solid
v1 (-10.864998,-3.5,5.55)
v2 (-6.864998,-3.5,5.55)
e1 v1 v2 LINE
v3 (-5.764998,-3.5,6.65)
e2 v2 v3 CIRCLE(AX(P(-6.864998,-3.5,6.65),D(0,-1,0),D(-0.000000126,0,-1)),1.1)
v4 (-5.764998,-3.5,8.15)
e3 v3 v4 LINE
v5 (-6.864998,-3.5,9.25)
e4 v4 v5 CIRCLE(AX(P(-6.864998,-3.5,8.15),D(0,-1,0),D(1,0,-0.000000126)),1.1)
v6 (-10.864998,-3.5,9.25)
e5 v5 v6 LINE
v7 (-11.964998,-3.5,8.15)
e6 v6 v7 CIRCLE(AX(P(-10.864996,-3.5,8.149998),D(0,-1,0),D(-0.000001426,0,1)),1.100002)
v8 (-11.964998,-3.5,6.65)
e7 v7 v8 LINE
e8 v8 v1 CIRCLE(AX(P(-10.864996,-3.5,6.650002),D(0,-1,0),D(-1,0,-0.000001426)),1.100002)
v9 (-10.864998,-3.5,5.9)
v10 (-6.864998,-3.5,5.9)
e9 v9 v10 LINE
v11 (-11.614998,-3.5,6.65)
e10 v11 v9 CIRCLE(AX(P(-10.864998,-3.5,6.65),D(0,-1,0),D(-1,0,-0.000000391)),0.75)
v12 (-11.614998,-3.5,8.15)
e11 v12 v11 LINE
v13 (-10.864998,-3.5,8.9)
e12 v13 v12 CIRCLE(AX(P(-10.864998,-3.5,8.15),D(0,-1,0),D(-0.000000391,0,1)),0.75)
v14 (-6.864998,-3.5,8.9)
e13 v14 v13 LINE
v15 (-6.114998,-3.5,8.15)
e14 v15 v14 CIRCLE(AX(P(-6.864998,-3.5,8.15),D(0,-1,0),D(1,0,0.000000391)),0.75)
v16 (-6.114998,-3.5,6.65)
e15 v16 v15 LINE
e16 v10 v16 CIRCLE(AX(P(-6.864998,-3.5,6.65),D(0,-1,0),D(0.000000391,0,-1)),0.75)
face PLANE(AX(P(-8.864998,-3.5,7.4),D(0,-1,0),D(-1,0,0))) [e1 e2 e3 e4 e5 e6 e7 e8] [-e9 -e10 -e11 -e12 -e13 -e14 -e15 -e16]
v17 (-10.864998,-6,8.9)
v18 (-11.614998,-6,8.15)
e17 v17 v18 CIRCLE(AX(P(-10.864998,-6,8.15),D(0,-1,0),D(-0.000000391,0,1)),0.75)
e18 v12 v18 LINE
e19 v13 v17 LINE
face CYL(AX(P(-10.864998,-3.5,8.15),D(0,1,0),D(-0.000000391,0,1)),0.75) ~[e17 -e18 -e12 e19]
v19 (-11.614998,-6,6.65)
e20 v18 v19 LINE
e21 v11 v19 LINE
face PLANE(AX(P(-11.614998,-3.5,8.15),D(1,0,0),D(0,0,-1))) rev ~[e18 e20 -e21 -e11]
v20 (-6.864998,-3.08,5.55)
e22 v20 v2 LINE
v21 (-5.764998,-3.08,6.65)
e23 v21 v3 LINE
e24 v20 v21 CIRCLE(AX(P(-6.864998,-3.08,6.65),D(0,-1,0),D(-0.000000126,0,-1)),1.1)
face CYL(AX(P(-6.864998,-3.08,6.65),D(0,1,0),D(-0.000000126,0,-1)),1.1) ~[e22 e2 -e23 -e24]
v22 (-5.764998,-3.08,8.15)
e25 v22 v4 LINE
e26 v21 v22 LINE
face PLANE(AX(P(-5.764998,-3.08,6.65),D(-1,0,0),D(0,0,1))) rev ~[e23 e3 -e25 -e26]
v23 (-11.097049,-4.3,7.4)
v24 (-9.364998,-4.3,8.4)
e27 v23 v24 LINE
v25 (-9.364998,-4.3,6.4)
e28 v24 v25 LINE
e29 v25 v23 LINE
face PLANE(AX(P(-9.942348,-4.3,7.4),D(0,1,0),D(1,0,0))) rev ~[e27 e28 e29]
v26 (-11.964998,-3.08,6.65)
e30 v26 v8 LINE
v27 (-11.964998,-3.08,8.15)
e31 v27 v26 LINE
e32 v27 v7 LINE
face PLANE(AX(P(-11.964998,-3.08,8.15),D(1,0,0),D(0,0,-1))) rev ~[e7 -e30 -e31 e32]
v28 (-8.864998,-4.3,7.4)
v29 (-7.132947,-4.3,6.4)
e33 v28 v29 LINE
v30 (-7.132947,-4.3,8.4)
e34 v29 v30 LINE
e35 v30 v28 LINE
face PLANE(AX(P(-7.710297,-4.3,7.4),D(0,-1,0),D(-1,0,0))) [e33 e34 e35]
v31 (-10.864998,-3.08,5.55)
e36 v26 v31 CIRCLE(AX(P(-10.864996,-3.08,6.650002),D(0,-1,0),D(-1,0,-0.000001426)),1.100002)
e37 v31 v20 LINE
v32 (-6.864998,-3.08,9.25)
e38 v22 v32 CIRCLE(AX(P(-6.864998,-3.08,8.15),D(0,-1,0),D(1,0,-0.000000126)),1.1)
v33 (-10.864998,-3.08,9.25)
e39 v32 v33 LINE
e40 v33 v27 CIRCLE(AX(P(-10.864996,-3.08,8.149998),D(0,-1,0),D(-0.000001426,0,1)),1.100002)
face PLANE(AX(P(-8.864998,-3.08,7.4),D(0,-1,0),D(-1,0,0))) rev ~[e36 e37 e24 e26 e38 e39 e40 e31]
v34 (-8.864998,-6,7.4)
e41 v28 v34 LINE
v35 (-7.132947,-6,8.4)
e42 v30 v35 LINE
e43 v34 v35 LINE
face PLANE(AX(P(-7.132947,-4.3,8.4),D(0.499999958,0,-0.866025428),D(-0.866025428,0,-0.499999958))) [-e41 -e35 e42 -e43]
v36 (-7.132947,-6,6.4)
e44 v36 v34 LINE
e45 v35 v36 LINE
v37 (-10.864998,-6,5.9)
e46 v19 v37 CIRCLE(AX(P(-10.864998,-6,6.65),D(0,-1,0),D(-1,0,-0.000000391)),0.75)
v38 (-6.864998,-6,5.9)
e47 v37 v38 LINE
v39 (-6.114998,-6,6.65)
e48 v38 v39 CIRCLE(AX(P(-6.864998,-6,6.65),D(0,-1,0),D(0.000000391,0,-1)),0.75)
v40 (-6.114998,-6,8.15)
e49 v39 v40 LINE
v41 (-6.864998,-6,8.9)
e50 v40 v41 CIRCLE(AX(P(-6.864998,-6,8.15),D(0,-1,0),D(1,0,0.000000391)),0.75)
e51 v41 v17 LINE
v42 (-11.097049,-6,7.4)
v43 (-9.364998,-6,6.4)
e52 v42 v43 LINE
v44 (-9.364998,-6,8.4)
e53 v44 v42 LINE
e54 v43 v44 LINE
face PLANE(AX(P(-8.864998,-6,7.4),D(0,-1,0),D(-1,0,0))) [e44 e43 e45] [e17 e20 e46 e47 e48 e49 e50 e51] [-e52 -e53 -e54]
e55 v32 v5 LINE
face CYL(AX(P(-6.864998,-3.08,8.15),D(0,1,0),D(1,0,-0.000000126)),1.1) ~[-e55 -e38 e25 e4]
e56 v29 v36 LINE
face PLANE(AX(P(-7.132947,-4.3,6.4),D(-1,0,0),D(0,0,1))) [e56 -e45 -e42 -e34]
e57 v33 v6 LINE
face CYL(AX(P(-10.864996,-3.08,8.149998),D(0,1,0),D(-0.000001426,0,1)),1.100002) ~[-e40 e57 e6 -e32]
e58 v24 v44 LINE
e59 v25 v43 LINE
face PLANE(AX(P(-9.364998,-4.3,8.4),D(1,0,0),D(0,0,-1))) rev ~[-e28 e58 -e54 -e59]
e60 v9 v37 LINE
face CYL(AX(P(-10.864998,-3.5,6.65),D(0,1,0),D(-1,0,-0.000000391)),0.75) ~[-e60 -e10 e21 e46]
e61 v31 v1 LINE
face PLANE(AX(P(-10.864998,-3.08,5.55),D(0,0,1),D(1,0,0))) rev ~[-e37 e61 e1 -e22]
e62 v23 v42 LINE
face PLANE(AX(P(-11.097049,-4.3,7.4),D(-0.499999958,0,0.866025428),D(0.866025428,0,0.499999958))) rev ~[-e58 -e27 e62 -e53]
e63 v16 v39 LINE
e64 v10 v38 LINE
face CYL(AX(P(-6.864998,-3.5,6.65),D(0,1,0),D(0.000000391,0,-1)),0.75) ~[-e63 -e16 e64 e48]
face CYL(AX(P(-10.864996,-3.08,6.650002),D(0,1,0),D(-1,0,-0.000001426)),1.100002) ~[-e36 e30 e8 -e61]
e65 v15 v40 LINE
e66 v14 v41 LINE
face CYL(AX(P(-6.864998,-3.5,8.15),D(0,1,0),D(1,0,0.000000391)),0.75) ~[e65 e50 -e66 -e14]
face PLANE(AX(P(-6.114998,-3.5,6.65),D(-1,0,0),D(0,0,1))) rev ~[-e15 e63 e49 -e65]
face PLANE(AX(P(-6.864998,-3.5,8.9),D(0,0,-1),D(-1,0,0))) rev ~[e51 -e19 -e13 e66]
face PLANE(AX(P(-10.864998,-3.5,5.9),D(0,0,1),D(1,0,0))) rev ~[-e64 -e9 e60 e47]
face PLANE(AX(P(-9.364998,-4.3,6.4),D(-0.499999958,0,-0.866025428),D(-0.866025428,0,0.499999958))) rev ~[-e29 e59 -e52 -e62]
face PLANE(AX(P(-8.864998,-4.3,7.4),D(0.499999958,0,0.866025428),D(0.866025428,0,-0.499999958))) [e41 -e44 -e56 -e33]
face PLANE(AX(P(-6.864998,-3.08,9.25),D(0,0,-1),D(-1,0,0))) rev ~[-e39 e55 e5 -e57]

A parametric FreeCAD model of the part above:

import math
import FreeCAD as App
import Part
import Sketcher
Q = App.Units.Quantity

doc = App.newDocument("Part")
body = doc.addObject("PartDesign::Body", "Body")

# Sketch on XZ plane
sketch1 = body.newObject("Sketcher::SketchObject", "Sketch")
sketch1.AttachmentSupport = (doc.getObject("XZ_Plane"), [""])
sketch1.MapMode = "FlatFace"
sketch1.AttachmentOffset = App.Placement(App.Vector(0, 0, 3.08), App.Rotation())
sketch1.addGeometry(Part.LineSegment(App.Vector(6.164998, 8.15, 0), App.Vector(6.164998, 6.65, 0)), False)
sketch1.addGeometry(Part.ArcOfCircle(Part.Circle(App.Vector(7.264998, 6.65, 0), App.Vector(0, 0, 1), 1.1), math.radians(179.999993), math.radians(270.000007)), False)
sketch1.addGeometry(Part.LineSegment(App.Vector(7.264998, 5.55, 0), App.Vector(11.264998, 5.55, 0)), False)
sketch1.addGeometry(Part.ArcOfCircle(Part.Circle(App.Vector(11.264996, 6.650002, 0), App.Vector(0, 0, 1), 1.100002), math.radians(-89.999918), math.radians(-0.000082)), False)
sketch1.addGeometry(Part.LineSegment(App.Vector(12.364998, 6.65, 0), App.Vector(12.364998, 8.15, 0)), False)
sketch1.addGeometry(Part.ArcOfCircle(Part.Circle(App.Vector(11.264996, 8.149998, 0), App.Vector(0, 0, 1), 1.100002), math.radians(0.000082), math.radians(89.999918)), False)
sketch1.addGeometry(Part.LineSegment(App.Vector(11.264998, 9.25, 0), App.Vector(7.264998, 9.25, 0)), False)
sketch1.addGeometry(Part.ArcOfCircle(Part.Circle(App.Vector(7.264998, 8.15, 0), App.Vector(0, 0, 1), 1.1), math.radians(89.999993), math.radians(180.000007)), False)
sketch1.addConstraint(Sketcher.Constraint("Tangent", 0, 2, 1, 1))
sketch1.addConstraint(Sketcher.Constraint("Tangent", 1, 2, 2, 1))
sketch1.addConstraint(Sketcher.Constraint("Tangent", 2, 2, 3, 1))
sketch1.addConstraint(Sketcher.Constraint("Tangent", 3, 2, 4, 1))
sketch1.addConstraint(Sketcher.Constraint("Tangent", 4, 2, 5, 1))
sketch1.addConstraint(Sketcher.Constraint("Tangent", 5, 2, 6, 1))
sketch1.addConstraint(Sketcher.Constraint("Tangent", 6, 2, 7, 1))
sketch1.addConstraint(Sketcher.Constraint("Tangent", 7, 2, 0, 1))
sketch1.addConstraint(Sketcher.Constraint("Vertical", 0))
sketch1.addConstraint(Sketcher.Constraint("Horizontal", 2))
sketch1.addConstraint(Sketcher.Constraint("Vertical", 4))
sketch1.addConstraint(Sketcher.Constraint("Horizontal", 6))
sketch1.addConstraint(Sketcher.Constraint("Equal", 1, 3))
sketch1.addConstraint(Sketcher.Constraint("Equal", 3, 5))
sketch1.addConstraint(Sketcher.Constraint("Equal", 5, 7))
sketch1.addConstraint(Sketcher.Constraint("Radius", 1, Q("1.1 mm")))
sketch1.addConstraint(Sketcher.Constraint("DistanceX", 2, 1, 2, 2, Q("4 mm")))
sketch1.addConstraint(Sketcher.Constraint("DistanceY", 0, 2, 0, 1, Q("1.5 mm")))
sketch1.addConstraint(Sketcher.Constraint("DistanceY", -1, 1, 1, 3, Q("6.65 mm")))
sketch1.addConstraint(Sketcher.Constraint("DistanceX", -1, 1, 1, 2, Q("7.264998 mm")))
pad1 = body.newObject("PartDesign::Pad", "Pad")
pad1.Profile = sketch1
pad1.Length = 0.42

# Sketch on XZ plane
sketch2 = body.newObject("Sketcher::SketchObject", "Sketch001")
sketch2.AttachmentSupport = (doc.getObject("XZ_Plane"), [""])
sketch2.MapMode = "FlatFace"
sketch2.AttachmentOffset = App.Placement(App.Vector(0, 0, 3.5), App.Rotation())
sketch2.addGeometry(Part.LineSegment(App.Vector(6.514998, 8.15, 0), App.Vector(6.514998, 6.65, 0)), False)
sketch2.addGeometry(Part.ArcOfCircle(Part.Circle(App.Vector(7.264998, 6.65, 0), App.Vector(0, 0, 1), 0.75), math.radians(-179.999978), math.radians(-90.000022)), False)
sketch2.addGeometry(Part.LineSegment(App.Vector(7.264998, 5.9, 0), App.Vector(11.264998, 5.9, 0)), False)
sketch2.addGeometry(Part.ArcOfCircle(Part.Circle(App.Vector(11.264998, 6.65, 0), App.Vector(0, 0, 1), 0.75), math.radians(-89.999978), math.radians(-0.000022)), False)
sketch2.addGeometry(Part.LineSegment(App.Vector(12.014998, 6.65, 0), App.Vector(12.014998, 8.15, 0)), False)
sketch2.addGeometry(Part.ArcOfCircle(Part.Circle(App.Vector(11.264998, 8.15, 0), App.Vector(0, 0, 1), 0.75), math.radians(0.000022), math.radians(89.999978)), False)
sketch2.addGeometry(Part.LineSegment(App.Vector(11.264998, 8.9, 0), App.Vector(7.264998, 8.9, 0)), False)
sketch2.addGeometry(Part.ArcOfCircle(Part.Circle(App.Vector(7.264998, 8.15, 0), App.Vector(0, 0, 1), 0.75), math.radians(90.000022), math.radians(179.999978)), False)
sketch2.addConstraint(Sketcher.Constraint("Tangent", 0, 2, 1, 1))
sketch2.addConstraint(Sketcher.Constraint("Tangent", 1, 2, 2, 1))
sketch2.addConstraint(Sketcher.Constraint("Tangent", 2, 2, 3, 1))
sketch2.addConstraint(Sketcher.Constraint("Tangent", 3, 2, 4, 1))
sketch2.addConstraint(Sketcher.Constraint("Tangent", 4, 2, 5, 1))
sketch2.addConstraint(Sketcher.Constraint("Tangent", 5, 2, 6, 1))
sketch2.addConstraint(Sketcher.Constraint("Tangent", 6, 2, 7, 1))
sketch2.addConstraint(Sketcher.Constraint("Tangent", 7, 2, 0, 1))
sketch2.addConstraint(Sketcher.Constraint("Vertical", 0))
sketch2.addConstraint(Sketcher.Constraint("Horizontal", 2))
sketch2.addConstraint(Sketcher.Constraint("Vertical", 4))
sketch2.addConstraint(Sketcher.Constraint("Horizontal", 6))
sketch2.addConstraint(Sketcher.Constraint("Equal", 1, 3))
sketch2.addConstraint(Sketcher.Constraint("Equal", 3, 5))
sketch2.addConstraint(Sketcher.Constraint("Equal", 5, 7))
sketch2.addConstraint(Sketcher.Constraint("DistanceX", 2, 1, 2, 2, Q("4 mm")))
sketch2.addConstraint(Sketcher.Constraint("Radius", 1, Q("0.75 mm")))
sketch2.addConstraint(Sketcher.Constraint("DistanceY", 0, 2, 0, 1, Q("1.5 mm")))
sketch2.addConstraint(Sketcher.Constraint("DistanceY", -1, 1, 1, 2, Q("5.9 mm")))
sketch2.addConstraint(Sketcher.Constraint("DistanceX", -1, 1, 1, 3, Q("7.264998 mm")))
pad2 = body.newObject("PartDesign::Pad", "Pad001")
pad2.Profile = sketch2
pad2.Length = 2.5
body2 = doc.addObject("PartDesign::Body", "Body001")
doc.recompute()

body.Placement = App.Placement(App.Vector(0, -0.68, 0), App.Rotation(App.Vector(0, 0, 1), 0))
boolean = body2.newObject("PartDesign::Boolean", "Boolean")
boolean.Type = "Fuse"
boolean.addObjects([body])
body3 = doc.addObject("PartDesign::Body", "Body002")
doc.recompute()

body2.Placement = App.Placement(App.Vector(0, 0.68, 0), App.Rotation(App.Vector(0, 0, 1), 0))
boolean2 = body3.newObject("PartDesign::Boolean", "Boolean001")
boolean2.Type = "Fuse"
boolean2.addObjects([body2])

# Sketch on XZ plane
sketch3 = body3.newObject("Sketcher::SketchObject", "Sketch002")
sketch3.AttachmentSupport = (doc.getObject("XZ_Plane002"), [""])
sketch3.MapMode = "FlatFace"
sketch3.AttachmentOffset = App.Placement(App.Vector(0, 0, 4.3), App.Rotation())
sketch3.addGeometry(Part.LineSegment(App.Vector(9.764998, 8.4, 0), App.Vector(9.764998, 6.4, 0)), False)
sketch3.addGeometry(Part.LineSegment(App.Vector(9.764998, 6.4, 0), App.Vector(11.497049, 7.4, 0)), False)
sketch3.addGeometry(Part.LineSegment(App.Vector(11.497049, 7.4, 0), App.Vector(9.764998, 8.4, 0)), False)
sketch3.addGeometry(Part.LineSegment(App.Vector(7.532947, 8.4, 0), App.Vector(7.532947, 6.4, 0)), False)
sketch3.addGeometry(Part.LineSegment(App.Vector(7.532947, 6.4, 0), App.Vector(9.264998, 7.4, 0)), False)
sketch3.addGeometry(Part.LineSegment(App.Vector(9.264998, 7.4, 0), App.Vector(7.532947, 8.4, 0)), False)
sketch3.addConstraint(Sketcher.Constraint("Coincident", 0, 2, 1, 1))
sketch3.addConstraint(Sketcher.Constraint("Coincident", 1, 2, 2, 1))
sketch3.addConstraint(Sketcher.Constraint("Coincident", 2, 2, 0, 1))
sketch3.addConstraint(Sketcher.Constraint("Coincident", 3, 2, 4, 1))
sketch3.addConstraint(Sketcher.Constraint("Coincident", 4, 2, 5, 1))
sketch3.addConstraint(Sketcher.Constraint("Coincident", 5, 2, 3, 1))
sketch3.addConstraint(Sketcher.Constraint("Vertical", 0))
sketch3.addConstraint(Sketcher.Constraint("Vertical", 3))
sketch3.addConstraint(Sketcher.Constraint("Parallel", 1, 4))
sketch3.addConstraint(Sketcher.Constraint("Parallel", 2, 5))
sketch3.addConstraint(Sketcher.Constraint("Horizontal", 0, 2, 3, 2))
sketch3.addConstraint(Sketcher.Constraint("Horizontal", 1, 2, 4, 2))
sketch3.addConstraint(Sketcher.Constraint("Equal", 1, 2))
sketch3.addConstraint(Sketcher.Constraint("DistanceY", 0, 2, 0, 1, Q("2 mm")))
sketch3.addConstraint(Sketcher.Constraint("Angle", 1, Q("29.999997 deg")))
sketch3.addConstraint(Sketcher.Constraint("DistanceY", -1, 1, 0, 2, Q("6.4 mm")))
sketch3.addConstraint(Sketcher.Constraint("DistanceX", 4, 2, 0, 2, Q("0.5 mm")))
sketch3.addConstraint(Sketcher.Constraint("DistanceX", -1, 1, 1, 2, Q("11.497049 mm")))
pocket1 = body3.newObject("PartDesign::Pocket", "Pocket")
pocket1.Profile = sketch3
pocket1.Length = 5.7
pocket1.Reversed = True
body4 = doc.addObject("PartDesign::Body", "Body003")
doc.recompute()

body3.Placement = App.Placement(App.Vector(0.4, 0, 14.8), App.Rotation(App.Vector(0, 1, 0), 180))
boolean3 = body4.newObject("PartDesign::Boolean", "Boolean002")
boolean3.Type = "Fuse"
boolean3.addObjects([body3])

doc.recompute()
